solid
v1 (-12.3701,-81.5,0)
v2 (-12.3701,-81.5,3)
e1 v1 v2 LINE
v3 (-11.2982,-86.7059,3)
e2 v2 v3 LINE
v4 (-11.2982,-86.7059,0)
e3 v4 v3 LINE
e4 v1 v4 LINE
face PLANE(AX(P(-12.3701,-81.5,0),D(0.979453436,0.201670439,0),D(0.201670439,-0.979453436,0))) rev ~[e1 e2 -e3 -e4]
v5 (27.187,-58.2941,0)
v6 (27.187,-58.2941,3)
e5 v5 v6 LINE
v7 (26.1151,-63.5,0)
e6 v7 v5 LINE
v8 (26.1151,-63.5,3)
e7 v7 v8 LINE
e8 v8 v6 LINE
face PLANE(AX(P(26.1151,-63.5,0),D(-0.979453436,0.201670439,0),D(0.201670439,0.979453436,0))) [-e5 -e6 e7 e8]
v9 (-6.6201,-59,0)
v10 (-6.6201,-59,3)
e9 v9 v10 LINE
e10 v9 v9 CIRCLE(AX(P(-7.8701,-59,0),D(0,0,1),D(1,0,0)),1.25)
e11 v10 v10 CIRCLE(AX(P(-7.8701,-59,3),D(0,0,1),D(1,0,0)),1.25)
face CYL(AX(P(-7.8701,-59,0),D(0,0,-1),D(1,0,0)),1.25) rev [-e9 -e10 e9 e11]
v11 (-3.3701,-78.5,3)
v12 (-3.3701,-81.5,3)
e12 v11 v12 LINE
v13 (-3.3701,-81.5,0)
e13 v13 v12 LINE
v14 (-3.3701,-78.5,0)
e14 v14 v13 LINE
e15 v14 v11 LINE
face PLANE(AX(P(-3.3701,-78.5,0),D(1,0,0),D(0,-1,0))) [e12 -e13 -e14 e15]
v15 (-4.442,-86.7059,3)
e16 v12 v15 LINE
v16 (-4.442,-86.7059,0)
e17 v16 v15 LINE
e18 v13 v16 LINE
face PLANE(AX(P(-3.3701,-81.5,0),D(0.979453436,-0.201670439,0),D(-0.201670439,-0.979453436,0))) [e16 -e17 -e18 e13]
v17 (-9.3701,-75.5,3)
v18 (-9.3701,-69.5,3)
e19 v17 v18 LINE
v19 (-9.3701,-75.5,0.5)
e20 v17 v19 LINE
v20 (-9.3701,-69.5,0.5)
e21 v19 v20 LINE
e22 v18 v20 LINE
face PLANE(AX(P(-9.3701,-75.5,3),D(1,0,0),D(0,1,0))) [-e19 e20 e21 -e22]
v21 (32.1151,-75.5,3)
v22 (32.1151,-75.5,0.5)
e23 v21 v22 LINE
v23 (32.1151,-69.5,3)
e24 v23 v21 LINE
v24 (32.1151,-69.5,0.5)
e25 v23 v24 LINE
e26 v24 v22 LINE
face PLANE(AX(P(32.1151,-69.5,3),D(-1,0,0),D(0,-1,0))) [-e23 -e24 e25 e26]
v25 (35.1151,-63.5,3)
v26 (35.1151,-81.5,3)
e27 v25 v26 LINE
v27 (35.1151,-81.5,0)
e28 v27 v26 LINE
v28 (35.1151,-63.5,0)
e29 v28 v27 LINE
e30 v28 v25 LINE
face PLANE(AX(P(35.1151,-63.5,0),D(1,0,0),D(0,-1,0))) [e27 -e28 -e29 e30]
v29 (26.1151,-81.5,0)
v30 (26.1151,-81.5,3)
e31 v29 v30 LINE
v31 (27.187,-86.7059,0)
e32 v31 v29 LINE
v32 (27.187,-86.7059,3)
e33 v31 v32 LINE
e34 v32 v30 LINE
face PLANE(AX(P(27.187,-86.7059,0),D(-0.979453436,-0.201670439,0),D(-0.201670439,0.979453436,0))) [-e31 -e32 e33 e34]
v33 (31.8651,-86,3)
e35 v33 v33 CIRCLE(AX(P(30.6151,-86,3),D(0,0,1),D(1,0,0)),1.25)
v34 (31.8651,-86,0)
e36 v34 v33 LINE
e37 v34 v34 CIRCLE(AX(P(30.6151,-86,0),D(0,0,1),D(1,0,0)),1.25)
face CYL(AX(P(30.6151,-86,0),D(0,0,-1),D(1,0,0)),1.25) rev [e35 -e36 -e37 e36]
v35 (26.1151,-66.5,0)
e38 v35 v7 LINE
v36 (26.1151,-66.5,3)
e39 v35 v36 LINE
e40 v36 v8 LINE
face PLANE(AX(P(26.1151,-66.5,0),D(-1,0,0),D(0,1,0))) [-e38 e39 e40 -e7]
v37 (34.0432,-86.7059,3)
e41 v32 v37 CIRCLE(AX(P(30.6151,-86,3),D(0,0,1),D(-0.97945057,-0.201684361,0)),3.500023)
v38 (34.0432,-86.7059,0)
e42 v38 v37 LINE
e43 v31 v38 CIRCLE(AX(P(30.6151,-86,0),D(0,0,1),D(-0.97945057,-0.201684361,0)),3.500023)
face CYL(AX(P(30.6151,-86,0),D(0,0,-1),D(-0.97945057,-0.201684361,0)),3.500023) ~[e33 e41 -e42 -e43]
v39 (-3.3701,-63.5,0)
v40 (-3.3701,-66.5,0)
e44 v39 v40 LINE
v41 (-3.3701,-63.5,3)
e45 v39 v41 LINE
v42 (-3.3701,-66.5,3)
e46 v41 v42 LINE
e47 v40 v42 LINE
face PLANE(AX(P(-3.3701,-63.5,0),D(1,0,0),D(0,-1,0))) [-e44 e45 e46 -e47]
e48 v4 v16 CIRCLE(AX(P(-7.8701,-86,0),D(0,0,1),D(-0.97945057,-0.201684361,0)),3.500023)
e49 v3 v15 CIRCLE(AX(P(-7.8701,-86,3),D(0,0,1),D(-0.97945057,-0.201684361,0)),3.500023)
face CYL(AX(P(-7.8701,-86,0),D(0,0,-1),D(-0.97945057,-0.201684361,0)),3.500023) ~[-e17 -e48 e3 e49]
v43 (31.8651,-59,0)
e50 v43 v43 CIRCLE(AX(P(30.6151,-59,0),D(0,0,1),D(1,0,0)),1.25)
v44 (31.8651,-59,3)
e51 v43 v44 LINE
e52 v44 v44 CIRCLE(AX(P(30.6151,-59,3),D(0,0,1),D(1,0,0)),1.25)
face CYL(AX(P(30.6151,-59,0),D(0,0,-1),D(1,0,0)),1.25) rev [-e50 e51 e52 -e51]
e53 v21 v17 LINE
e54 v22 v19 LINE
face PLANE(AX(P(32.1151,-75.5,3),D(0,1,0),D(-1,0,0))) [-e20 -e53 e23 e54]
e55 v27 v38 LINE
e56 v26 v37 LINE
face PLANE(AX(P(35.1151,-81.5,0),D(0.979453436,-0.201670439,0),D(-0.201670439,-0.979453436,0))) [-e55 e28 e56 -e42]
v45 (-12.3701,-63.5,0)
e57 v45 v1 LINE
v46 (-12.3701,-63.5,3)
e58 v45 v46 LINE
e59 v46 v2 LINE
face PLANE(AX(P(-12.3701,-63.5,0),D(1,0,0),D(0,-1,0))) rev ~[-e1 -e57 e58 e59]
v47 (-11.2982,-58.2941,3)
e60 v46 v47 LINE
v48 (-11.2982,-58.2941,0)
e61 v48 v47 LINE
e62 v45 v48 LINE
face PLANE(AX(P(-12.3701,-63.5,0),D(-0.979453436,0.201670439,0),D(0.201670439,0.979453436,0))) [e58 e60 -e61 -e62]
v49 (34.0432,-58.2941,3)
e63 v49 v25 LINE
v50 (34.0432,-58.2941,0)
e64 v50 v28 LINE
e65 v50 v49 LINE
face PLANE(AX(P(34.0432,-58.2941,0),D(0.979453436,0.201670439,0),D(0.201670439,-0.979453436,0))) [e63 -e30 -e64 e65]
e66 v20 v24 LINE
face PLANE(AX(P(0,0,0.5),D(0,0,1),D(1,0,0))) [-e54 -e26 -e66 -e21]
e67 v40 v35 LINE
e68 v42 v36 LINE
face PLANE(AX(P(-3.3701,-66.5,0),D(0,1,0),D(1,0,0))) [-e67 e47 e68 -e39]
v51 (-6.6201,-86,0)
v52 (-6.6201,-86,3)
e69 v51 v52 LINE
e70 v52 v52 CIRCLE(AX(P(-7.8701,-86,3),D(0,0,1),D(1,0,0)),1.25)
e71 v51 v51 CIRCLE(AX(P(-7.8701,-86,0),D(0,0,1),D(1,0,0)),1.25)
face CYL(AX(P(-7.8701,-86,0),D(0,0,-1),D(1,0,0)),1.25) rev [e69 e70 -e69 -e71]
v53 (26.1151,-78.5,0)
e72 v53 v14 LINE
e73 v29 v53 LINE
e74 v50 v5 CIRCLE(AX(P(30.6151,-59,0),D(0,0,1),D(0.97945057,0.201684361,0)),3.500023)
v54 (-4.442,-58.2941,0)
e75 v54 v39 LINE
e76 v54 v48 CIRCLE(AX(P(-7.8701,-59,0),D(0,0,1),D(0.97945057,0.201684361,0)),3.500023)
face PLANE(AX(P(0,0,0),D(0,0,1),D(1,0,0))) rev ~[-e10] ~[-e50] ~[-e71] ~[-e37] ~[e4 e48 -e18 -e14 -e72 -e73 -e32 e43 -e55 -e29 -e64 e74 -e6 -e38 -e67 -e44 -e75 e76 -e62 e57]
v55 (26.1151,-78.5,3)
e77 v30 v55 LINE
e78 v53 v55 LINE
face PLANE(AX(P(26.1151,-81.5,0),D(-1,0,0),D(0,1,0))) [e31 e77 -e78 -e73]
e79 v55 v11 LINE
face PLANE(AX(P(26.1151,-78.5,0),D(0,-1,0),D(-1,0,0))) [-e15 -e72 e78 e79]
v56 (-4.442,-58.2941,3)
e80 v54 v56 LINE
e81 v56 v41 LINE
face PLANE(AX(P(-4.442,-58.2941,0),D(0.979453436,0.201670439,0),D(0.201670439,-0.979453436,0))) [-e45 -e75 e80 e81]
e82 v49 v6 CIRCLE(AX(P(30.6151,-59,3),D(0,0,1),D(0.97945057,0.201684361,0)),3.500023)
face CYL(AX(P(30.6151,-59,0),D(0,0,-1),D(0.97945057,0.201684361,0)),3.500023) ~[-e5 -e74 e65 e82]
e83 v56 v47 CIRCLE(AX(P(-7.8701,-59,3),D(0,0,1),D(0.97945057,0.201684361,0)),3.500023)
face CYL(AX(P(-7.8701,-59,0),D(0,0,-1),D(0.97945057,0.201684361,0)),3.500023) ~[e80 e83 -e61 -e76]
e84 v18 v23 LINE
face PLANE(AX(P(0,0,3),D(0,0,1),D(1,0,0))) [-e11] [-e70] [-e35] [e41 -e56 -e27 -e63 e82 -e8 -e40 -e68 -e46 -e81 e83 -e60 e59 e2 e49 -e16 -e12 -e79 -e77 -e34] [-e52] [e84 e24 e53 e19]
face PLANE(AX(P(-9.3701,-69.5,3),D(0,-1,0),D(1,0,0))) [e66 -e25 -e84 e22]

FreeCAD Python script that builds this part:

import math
import FreeCAD as App
import Part
import Sketcher

V = App.Vector

doc = App.newDocument("Part")
body = doc.addObject("PartDesign::Body", "Body")

# Sketch on XY plane
sketch1 = body.newObject("Sketcher::SketchObject", "Sketch")
sketch1.AttachmentSupport = (doc.getObject("XY_Plane"), [""])
sketch1.MapMode = "FlatFace"
sketch1.addGeometry([
    Part.LineSegment(V(-12.4, -81.5, 0), V(-11.3, -86.7, 0)),  # 0
    Part.ArcOfCircle(Part.Circle(V(-7.9, -86, 0), V(0, 0, 1), 3.5), math.radians(-168), math.radians(-12)),  # 1
    Part.LineSegment(V(-4.4, -86.7, 0), V(-3.4, -81.5, 0)),  # 2
    Part.LineSegment(V(-3.4, -81.5, 0), V(-3.4, -78.5, 0)),  # 3
    Part.LineSegment(V(-3.4, -78.5, 0), V(26.1, -78.5, 0)),  # 4
    Part.LineSegment(V(26.1, -78.5, 0), V(26.1, -81.5, 0)),  # 5
    Part.LineSegment(V(26.1, -81.5, 0), V(27.2, -86.7, 0)),  # 6
    Part.ArcOfCircle(Part.Circle(V(30.6, -86, 0), V(0, 0, 1), 3.5), math.radians(-168), math.radians(-12)),  # 7
    Part.LineSegment(V(34, -86.7, 0), V(35.1, -81.5, 0)),  # 8
    Part.LineSegment(V(35.1, -81.5, 0), V(35.1, -63.5, 0)),  # 9
    Part.LineSegment(V(35.1, -63.5, 0), V(34, -58.3, 0)),  # 10
    Part.ArcOfCircle(Part.Circle(V(30.6, -59, 0), V(0, 0, 1), 3.5), math.radians(12), math.radians(168)),  # 11
    Part.LineSegment(V(27.2, -58.3, 0), V(26.1, -63.5, 0)),  # 12
    Part.LineSegment(V(26.1, -63.5, 0), V(26.1, -66.5, 0)),  # 13
    Part.LineSegment(V(26.1, -66.5, 0), V(-3.4, -66.5, 0)),  # 14
    Part.LineSegment(V(-3.4, -66.5, 0), V(-3.4, -63.5, 0)),  # 15
    Part.LineSegment(V(-3.4, -63.5, 0), V(-4.4, -58.3, 0)),  # 16
    Part.ArcOfCircle(Part.Circle(V(-7.9, -59, 0), V(0, 0, 1), 3.5), math.radians(12), math.radians(168)),  # 17
    Part.LineSegment(V(-11.3, -58.3, 0), V(-12.4, -63.5, 0)),  # 18
    Part.LineSegment(V(-12.4, -63.5, 0), V(-12.4, -81.5, 0)),  # 19
    Part.Circle(V(-7.9, -86, 0), V(0, 0, 1), 1.2),  # 20
    Part.Circle(V(30.6, -86, 0), V(0, 0, 1), 1.2),  # 21
    Part.Circle(V(-7.9, -59, 0), V(0, 0, 1), 1.2),  # 22
    Part.Circle(V(30.6, -59, 0), V(0, 0, 1), 1.2),  # 23
], False)
sketch1.addConstraint([
    Sketcher.Constraint("Tangent", 0, 2, 1, 1),
    Sketcher.Constraint("Tangent", 1, 2, 2, 1),
    Sketcher.Constraint("Coincident", 2, 2, 3, 1),
    Sketcher.Constraint("Coincident", 3, 2, 4, 1),
    Sketcher.Constraint("Coincident", 4, 2, 5, 1),
    Sketcher.Constraint("Coincident", 5, 2, 6, 1),
    Sketcher.Constraint("Tangent", 6, 2, 7, 1),
    Sketcher.Constraint("Tangent", 7, 2, 8, 1),
    Sketcher.Constraint("Coincident", 8, 2, 9, 1),
    Sketcher.Constraint("Coincident", 9, 2, 10, 1),
    Sketcher.Constraint("Tangent", 10, 2, 11, 1),
    Sketcher.Constraint("Tangent", 11, 2, 12, 1),
    Sketcher.Constraint("Coincident", 12, 2, 13, 1),
    Sketcher.Constraint("Coincident", 13, 2, 14, 1),
    Sketcher.Constraint("Coincident", 14, 2, 15, 1),
    Sketcher.Constraint("Coincident", 15, 2, 16, 1),
    Sketcher.Constraint("Tangent", 16, 2, 17, 1),
    Sketcher.Constraint("Tangent", 17, 2, 18, 1),
    Sketcher.Constraint("Coincident", 18, 2, 19, 1),
    Sketcher.Constraint("Coincident", 19, 2, 0, 1),
    Sketcher.Constraint("Vertical", 3),
    Sketcher.Constraint("Horizontal", 4),
    Sketcher.Constraint("Vertical", 5),
    Sketcher.Constraint("Vertical", 9),
    Sketcher.Constraint("Vertical", 13),
    Sketcher.Constraint("Horizontal", 14),
    Sketcher.Constraint("Vertical", 15),
    Sketcher.Constraint("Vertical", 19),
    Sketcher.Constraint("Coincident", 20, 3, 1, 3),
    Sketcher.Constraint("Coincident", 21, 3, 7, 3),
    Sketcher.Constraint("Coincident", 22, 3, 17, 3),
    Sketcher.Constraint("Coincident", 23, 3, 11, 3),
    Sketcher.Constraint("Equal", 1, 7),
    Sketcher.Constraint("Equal", 7, 11),
    Sketcher.Constraint("Equal", 11, 17),
    Sketcher.Constraint("Equal", 20, 21),
    Sketcher.Constraint("Equal", 21, 22),
    Sketcher.Constraint("Equal", 22, 23),
    Sketcher.Constraint("Parallel", 0, 6),
    Sketcher.Constraint("Parallel", 2, 8),
    Sketcher.Constraint("Parallel", 6, 10),
    Sketcher.Constraint("Parallel", 8, 12),
    Sketcher.Constraint("Parallel", 10, 16),
    Sketcher.Constraint("Parallel", 12, 18),
    Sketcher.Constraint("Horizontal", 1, 3, 7, 3),
    Sketcher.Constraint("Horizontal", 11, 3, 17, 3),
    Sketcher.Constraint("Horizontal", 0, 2, 1, 2),
    Sketcher.Constraint("Horizontal", 2, 2, 5, 2),
    Sketcher.Constraint("Horizontal", 5, 2, 8, 2),
    Sketcher.Constraint("Horizontal", 9, 2, 12, 2),
    Sketcher.Constraint("Horizontal", 12, 2, 15, 2),
    Sketcher.Constraint("Horizontal", 15, 2, 18, 2),
    Sketcher.Constraint("Horizontal", 8, 2, 19, 2),
    Sketcher.Constraint("Vertical", 7, 3, 11, 3),
    Sketcher.Constraint("Equal", 5, 13),
    Sketcher.Constraint("Diameter", 20, 2.5),
    Sketcher.Constraint("Radius", 1, 3.5),
    Sketcher.Constraint("DistanceY", 3, 1, 3, 2, 3.0),
    Sketcher.Constraint("DistanceX", 5, 2, 8, 2, 9.0),
    Sketcher.Constraint("DistanceY", 1, 3, 2, 2, 4.5),
    Sketcher.Constraint("DistanceY", 9, 1, 9, 2, 18.0),
    Sketcher.Constraint("DistanceY", 1, 3, -1, 1, 86.0),
    Sketcher.Constraint("DistanceX", 1, 3, -1, 1, 7.87),
    Sketcher.Constraint("DistanceX", 4, 1, 4, 2, 29.4852),
])
pad1 = body.newObject("PartDesign::Pad", "Pad")
pad1.Profile = sketch1
pad1.Length = 3

# Sketch on XY plane
sketch2 = body.newObject("Sketcher::SketchObject", "Sketch001")
sketch2.AttachmentSupport = (doc.getObject("XY_Plane"), [""])
sketch2.MapMode = "FlatFace"
sketch2.AttachmentOffset = App.Placement(V(0, 0, 3), App.Rotation())
sketch2.addGeometry([
    Part.LineSegment(V(32, -70, 0), V(-9, -70, 0)),
    Part.LineSegment(V(-9, -70, 0), V(-9, -76, 0)),
    Part.LineSegment(V(-9, -76, 0), V(32, -76, 0)),
    Part.LineSegment(V(32, -76, 0), V(32, -70, 0)),
], False)
sketch2.addConstraint([
    Sketcher.Constraint("Coincident", 0, 2, 1, 1),
    Sketcher.Constraint("Coincident", 1, 2, 2, 1),
    Sketcher.Constraint("Coincident", 2, 2, 3, 1),
    Sketcher.Constraint("Coincident", 3, 2, 0, 1),
    Sketcher.Constraint("Horizontal", 0),
    Sketcher.Constraint("Vertical", 1),
    Sketcher.Constraint("Horizontal", 2),
    Sketcher.Constraint("Vertical", 3),
    Sketcher.Constraint("DistanceY", 1, 2, 1, 1, 6.0),
    Sketcher.Constraint("DistanceY", 0, 2, -1, 1, 69.5),
    Sketcher.Constraint("DistanceX", 0, 2, -1, 1, 9.37),
    Sketcher.Constraint("DistanceX", 0, 2, 0, 1, 41.4852),
])
pocket1 = body.newObject("PartDesign::Pocket", "Pocket")
pocket1.Profile = sketch2
pocket1.Length = 2.5

doc.recompute()
